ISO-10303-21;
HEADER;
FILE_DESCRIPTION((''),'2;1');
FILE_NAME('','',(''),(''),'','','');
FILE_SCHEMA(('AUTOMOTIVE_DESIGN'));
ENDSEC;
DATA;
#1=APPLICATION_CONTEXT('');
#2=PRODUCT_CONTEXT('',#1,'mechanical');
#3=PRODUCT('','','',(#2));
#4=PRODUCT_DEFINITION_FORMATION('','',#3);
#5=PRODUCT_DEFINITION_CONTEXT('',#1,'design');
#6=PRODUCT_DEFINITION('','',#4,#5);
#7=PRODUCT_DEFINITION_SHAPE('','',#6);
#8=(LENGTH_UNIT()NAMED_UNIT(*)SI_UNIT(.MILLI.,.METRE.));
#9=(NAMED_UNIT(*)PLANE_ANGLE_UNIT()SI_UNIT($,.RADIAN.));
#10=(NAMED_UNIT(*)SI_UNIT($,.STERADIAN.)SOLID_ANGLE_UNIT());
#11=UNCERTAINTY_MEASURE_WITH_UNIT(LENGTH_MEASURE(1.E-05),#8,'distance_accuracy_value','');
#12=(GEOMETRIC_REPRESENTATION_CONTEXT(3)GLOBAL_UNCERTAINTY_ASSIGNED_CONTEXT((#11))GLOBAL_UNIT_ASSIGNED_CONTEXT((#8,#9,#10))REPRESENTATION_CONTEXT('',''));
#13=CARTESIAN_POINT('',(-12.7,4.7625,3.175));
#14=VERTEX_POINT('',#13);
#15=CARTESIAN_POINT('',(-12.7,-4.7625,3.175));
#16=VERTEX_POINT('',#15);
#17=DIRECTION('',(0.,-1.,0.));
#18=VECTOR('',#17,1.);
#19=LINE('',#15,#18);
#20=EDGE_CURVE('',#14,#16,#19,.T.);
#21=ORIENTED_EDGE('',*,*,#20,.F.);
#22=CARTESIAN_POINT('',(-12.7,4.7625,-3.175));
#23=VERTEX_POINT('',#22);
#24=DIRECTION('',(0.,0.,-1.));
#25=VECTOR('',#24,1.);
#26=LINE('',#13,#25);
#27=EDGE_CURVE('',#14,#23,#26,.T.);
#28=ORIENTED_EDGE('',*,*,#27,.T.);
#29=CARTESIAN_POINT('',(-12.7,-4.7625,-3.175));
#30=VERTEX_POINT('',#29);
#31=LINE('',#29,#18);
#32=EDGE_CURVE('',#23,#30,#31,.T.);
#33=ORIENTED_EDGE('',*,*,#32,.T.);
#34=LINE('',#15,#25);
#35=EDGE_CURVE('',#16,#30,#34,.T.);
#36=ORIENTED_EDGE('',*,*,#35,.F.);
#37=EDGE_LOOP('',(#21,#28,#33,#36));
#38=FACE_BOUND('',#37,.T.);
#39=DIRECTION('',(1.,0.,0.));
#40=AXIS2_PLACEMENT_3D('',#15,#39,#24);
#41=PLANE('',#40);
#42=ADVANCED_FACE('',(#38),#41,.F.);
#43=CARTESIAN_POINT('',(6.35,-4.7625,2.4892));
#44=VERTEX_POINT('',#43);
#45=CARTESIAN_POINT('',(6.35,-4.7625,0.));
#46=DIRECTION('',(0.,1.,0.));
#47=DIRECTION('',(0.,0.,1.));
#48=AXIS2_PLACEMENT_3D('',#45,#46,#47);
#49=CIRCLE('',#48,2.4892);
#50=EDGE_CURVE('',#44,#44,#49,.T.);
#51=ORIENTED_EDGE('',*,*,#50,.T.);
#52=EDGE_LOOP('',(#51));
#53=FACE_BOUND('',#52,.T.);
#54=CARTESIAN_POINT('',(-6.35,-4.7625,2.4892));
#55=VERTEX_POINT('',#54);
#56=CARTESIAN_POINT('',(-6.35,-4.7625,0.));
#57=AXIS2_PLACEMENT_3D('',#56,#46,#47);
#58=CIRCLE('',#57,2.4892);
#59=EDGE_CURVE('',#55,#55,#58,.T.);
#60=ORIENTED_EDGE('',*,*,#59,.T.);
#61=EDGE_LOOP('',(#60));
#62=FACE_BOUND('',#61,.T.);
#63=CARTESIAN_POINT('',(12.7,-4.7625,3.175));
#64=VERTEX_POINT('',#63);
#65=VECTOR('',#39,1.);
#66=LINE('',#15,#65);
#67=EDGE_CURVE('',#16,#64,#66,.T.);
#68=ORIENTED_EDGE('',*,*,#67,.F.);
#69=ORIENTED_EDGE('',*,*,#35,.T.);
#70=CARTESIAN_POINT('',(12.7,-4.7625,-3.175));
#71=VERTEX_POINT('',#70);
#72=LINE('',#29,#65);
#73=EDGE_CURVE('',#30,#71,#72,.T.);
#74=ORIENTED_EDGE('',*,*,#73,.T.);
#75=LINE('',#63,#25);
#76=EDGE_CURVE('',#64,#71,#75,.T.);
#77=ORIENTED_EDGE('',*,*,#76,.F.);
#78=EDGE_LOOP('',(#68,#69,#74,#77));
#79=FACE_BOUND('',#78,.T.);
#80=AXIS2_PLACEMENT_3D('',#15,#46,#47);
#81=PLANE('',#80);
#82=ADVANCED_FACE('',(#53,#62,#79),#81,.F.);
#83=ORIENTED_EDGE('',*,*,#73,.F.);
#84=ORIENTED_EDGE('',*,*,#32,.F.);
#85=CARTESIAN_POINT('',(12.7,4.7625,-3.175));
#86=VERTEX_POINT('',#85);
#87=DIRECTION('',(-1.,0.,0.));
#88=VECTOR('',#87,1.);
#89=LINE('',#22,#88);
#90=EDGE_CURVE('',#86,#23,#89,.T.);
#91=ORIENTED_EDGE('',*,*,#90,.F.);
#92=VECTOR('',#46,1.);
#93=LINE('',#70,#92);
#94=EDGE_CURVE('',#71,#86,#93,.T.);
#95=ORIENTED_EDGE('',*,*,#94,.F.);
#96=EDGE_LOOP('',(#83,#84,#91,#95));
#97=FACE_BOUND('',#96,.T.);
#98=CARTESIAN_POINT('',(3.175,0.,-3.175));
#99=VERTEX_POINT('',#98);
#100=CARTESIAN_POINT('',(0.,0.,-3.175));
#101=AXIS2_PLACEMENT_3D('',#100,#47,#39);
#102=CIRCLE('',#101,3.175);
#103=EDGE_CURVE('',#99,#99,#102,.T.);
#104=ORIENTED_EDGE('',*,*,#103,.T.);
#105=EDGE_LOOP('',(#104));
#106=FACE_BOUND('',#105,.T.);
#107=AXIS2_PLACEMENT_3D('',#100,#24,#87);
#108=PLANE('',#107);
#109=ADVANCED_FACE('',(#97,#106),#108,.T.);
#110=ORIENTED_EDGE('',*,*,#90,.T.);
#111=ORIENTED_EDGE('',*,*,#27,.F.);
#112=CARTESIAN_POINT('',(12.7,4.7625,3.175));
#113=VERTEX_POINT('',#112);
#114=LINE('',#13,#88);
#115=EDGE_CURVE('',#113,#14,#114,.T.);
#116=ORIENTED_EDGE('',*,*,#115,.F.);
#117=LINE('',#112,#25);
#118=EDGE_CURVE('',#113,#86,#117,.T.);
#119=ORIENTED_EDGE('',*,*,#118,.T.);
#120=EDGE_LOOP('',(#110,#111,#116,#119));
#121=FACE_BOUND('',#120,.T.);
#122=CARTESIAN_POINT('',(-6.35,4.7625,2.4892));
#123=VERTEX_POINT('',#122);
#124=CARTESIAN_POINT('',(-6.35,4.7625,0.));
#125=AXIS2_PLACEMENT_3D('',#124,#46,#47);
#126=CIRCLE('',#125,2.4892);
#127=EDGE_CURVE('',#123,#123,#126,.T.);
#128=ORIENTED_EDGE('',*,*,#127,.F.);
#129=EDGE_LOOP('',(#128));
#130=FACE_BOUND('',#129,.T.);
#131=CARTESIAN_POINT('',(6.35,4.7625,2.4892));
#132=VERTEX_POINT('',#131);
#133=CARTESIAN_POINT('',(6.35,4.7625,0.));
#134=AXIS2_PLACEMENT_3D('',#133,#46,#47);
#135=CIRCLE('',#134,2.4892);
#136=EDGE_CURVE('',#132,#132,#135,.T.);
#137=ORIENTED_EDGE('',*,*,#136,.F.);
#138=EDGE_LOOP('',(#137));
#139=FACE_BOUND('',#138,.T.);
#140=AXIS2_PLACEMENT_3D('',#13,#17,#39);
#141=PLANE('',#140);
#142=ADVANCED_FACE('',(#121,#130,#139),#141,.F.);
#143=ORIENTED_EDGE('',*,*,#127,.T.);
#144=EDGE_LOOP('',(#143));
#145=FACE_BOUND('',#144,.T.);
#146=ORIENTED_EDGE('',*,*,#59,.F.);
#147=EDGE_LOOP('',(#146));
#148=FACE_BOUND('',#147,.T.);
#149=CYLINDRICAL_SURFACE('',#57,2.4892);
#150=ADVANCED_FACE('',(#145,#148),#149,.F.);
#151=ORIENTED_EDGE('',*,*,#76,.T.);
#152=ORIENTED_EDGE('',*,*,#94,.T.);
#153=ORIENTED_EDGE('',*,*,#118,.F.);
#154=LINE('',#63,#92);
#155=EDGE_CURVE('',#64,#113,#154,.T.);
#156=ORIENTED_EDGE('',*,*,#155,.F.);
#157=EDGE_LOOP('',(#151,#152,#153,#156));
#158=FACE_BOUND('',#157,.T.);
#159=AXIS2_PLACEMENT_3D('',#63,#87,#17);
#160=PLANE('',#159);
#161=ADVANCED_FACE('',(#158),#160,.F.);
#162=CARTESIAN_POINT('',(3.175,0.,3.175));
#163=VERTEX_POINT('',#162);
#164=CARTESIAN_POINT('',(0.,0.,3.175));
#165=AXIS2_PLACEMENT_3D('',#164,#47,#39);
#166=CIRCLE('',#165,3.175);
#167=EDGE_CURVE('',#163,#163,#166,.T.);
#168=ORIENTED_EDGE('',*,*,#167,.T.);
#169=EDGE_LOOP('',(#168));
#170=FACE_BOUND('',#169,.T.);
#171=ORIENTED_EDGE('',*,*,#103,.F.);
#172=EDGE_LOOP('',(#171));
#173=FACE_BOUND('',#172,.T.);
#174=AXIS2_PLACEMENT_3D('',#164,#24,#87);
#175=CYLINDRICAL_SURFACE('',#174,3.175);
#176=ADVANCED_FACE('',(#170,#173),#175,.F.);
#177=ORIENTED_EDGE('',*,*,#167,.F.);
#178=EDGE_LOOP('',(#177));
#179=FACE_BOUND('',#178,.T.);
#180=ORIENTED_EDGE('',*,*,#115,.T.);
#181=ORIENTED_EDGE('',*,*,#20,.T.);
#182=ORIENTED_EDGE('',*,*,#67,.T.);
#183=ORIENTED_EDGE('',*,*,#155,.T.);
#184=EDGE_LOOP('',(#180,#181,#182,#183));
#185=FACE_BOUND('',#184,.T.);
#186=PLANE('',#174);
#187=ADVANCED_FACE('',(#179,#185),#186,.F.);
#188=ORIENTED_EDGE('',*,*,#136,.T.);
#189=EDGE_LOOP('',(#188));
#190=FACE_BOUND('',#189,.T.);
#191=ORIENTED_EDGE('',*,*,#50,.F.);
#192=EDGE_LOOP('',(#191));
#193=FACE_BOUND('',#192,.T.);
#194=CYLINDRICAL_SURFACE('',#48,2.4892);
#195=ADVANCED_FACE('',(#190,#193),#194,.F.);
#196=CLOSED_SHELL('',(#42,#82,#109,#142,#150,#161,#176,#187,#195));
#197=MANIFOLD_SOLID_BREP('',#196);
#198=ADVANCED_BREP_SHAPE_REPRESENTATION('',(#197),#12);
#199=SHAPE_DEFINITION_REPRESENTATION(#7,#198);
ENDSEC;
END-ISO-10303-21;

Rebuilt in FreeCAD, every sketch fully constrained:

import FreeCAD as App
import Part
import Sketcher
Q = App.Units.Quantity

doc = App.newDocument("Part")
body = doc.addObject("PartDesign::Body", "Body")

sketch1 = body.newObject("Sketcher::SketchObject", "Sketch")
sketch1.AttachmentSupport = (doc.getObject("XY_Plane"), [""])
sketch1.MapMode = "FlatFace"
sketch1.addGeometry(Part.LineSegment(App.Vector(-12.7, 4.8, 0), App.Vector(-12.7, -4.8, 0)), False)
sketch1.addGeometry(Part.LineSegment(App.Vector(-12.7, -4.8, 0), App.Vector(12.7, -4.8, 0)), False)
sketch1.addGeometry(Part.LineSegment(App.Vector(12.7, -4.8, 0), App.Vector(12.7, 4.8, 0)), False)
sketch1.addGeometry(Part.LineSegment(App.Vector(12.7, 4.8, 0), App.Vector(-12.7, 4.8, 0)), False)
sketch1.addGeometry(Part.Circle(App.Vector(0, 0, 0), App.Vector(0, 0, 1), 3.2), False)
sketch1.addConstraint(Sketcher.Constraint("Coincident", 0, 2, 1, 1))
sketch1.addConstraint(Sketcher.Constraint("Coincident", 1, 2, 2, 1))
sketch1.addConstraint(Sketcher.Constraint("Coincident", 2, 2, 3, 1))
sketch1.addConstraint(Sketcher.Constraint("Coincident", 3, 2, 0, 1))
sketch1.addConstraint(Sketcher.Constraint("Vertical", 0))
sketch1.addConstraint(Sketcher.Constraint("Horizontal", 1))
sketch1.addConstraint(Sketcher.Constraint("Vertical", 2))
sketch1.addConstraint(Sketcher.Constraint("Horizontal", 3))
sketch1.addConstraint(Sketcher.Constraint("Coincident", 4, 3, -1, 1))
sketch1.addConstraint(Sketcher.Constraint("Symmetric", 0, 2, 2, 2, -1, 1))
sketch1.addConstraint(Sketcher.Constraint("Diameter", 4, Q("0.25 in")))
sketch1.addConstraint(Sketcher.Constraint("DistanceX", 1, 1, 1, 2, Q("1 in")))
sketch1.addConstraint(Sketcher.Constraint("DistanceY", 0, 2, 0, 1, Q("0.375 in")))
pad1 = body.newObject("PartDesign::Pad", "Pad")
pad1.Profile = sketch1
pad1.Length = Q("0.25 in")
pad1.Midplane = True

sketch2 = body.newObject("Sketcher::SketchObject", "Sketch001")
sketch2.AttachmentSupport = (doc.getObject("XZ_Plane"), [""])
sketch2.MapMode = "FlatFace"
sketch2.addGeometry(Part.Circle(App.Vector(6.3, 0, 0), App.Vector(0, 0, 1), 2.5), False)
sketch2.addGeometry(Part.Circle(App.Vector(-6.3, 0, 0), App.Vector(0, 0, 1), 2.5), False)
sketch2.addConstraint(Sketcher.Constraint("Equal", 0, 1))
sketch2.addConstraint(Sketcher.Constraint("Symmetric", 0, 3, 1, 3, -1, 1))
sketch2.addConstraint(Sketcher.Constraint("PointOnObject", 0, 3, -1))
sketch2.addConstraint(Sketcher.Constraint("Diameter", 0, Q("0.196 in")))
sketch2.addConstraint(Sketcher.Constraint("DistanceX", 1, 3, 0, 3, Q("0.5 in")))
pocket1 = body.newObject("PartDesign::Pocket", "Pocket")
pocket1.Profile = sketch2
pocket1.Type = "ThroughAll"
pocket1.Midplane = True

doc.recompute()
